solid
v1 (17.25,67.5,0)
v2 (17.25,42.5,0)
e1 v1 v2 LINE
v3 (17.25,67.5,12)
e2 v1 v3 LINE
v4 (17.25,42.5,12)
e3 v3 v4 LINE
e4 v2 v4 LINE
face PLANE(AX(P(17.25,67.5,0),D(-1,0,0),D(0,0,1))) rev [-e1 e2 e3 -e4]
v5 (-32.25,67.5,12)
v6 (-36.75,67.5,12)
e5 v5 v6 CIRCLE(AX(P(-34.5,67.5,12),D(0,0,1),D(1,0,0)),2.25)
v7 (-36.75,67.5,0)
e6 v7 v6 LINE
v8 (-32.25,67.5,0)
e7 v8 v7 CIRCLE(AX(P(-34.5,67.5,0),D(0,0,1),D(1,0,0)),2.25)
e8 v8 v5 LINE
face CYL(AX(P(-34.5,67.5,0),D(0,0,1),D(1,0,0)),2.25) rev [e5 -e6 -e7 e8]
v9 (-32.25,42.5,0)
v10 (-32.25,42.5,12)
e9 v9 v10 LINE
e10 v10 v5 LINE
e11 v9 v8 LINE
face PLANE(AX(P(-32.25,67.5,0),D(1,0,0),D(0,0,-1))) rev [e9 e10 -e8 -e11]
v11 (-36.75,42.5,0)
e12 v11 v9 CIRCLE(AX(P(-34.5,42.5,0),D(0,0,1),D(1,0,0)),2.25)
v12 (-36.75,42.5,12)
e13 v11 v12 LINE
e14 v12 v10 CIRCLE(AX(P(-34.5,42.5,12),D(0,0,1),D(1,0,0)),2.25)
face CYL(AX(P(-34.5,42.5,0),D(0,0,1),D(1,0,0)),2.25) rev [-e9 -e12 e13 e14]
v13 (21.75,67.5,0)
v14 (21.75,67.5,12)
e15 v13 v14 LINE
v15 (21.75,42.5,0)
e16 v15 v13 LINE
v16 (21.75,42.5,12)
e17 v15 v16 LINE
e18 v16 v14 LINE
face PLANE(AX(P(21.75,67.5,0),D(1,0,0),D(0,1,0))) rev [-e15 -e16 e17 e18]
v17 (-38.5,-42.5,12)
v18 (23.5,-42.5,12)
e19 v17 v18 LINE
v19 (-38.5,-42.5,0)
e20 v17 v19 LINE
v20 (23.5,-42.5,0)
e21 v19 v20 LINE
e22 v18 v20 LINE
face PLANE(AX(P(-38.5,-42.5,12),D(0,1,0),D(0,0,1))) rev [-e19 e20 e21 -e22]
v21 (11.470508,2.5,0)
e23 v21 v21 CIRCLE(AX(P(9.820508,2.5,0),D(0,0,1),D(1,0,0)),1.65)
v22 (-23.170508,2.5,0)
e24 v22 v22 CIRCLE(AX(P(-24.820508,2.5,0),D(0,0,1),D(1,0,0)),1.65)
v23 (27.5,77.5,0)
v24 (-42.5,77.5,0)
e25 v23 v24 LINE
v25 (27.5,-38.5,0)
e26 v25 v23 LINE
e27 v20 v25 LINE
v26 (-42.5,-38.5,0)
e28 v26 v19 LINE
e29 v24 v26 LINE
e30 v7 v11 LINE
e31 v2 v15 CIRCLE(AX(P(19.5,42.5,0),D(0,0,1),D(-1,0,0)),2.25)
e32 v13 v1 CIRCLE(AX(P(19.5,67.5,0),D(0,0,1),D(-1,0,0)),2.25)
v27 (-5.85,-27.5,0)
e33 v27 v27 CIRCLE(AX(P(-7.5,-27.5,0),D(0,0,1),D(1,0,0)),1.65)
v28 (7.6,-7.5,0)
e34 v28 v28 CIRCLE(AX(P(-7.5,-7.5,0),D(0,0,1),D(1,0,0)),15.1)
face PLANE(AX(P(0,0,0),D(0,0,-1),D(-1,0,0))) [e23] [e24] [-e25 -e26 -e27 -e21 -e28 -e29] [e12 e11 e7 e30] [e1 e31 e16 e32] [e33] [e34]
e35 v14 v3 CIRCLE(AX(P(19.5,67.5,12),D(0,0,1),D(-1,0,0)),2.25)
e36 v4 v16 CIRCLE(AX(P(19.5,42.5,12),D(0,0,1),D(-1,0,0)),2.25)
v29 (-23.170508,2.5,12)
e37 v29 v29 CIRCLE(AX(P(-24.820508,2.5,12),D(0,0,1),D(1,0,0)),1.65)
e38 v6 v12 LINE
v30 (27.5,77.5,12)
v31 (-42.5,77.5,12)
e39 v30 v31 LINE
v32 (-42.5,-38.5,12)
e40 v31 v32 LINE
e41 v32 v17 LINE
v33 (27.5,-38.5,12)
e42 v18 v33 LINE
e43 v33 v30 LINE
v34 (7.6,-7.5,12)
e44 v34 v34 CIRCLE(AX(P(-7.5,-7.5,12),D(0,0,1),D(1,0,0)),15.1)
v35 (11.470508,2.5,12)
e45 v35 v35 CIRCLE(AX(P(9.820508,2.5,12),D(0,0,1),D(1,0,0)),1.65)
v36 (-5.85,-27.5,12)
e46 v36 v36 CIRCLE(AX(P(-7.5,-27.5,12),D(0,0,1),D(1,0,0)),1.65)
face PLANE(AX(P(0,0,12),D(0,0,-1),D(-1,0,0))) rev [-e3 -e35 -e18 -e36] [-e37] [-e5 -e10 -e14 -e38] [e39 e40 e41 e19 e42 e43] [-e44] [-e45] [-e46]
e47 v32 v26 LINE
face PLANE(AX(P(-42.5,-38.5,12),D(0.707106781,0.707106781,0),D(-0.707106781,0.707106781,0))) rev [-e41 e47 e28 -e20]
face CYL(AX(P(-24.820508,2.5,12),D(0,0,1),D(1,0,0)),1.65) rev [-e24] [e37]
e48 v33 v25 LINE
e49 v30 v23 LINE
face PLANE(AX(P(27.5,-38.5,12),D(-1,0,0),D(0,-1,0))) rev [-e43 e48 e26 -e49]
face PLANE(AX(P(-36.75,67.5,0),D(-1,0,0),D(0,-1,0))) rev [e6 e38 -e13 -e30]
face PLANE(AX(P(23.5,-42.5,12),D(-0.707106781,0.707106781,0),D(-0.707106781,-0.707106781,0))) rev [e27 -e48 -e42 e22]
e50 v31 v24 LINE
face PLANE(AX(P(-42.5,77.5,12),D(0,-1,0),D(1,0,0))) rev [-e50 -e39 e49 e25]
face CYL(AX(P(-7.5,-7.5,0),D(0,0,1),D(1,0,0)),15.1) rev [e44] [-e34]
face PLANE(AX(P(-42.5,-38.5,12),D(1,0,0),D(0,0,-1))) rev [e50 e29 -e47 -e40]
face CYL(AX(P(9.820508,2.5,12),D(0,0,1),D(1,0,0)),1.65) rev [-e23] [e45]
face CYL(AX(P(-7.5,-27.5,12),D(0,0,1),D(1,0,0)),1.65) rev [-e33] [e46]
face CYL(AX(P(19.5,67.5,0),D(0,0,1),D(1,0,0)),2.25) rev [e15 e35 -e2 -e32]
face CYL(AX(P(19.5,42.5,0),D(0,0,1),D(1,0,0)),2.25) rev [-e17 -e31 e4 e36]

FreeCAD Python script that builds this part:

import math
import FreeCAD as App
import Part
import Sketcher

V = App.Vector
Q = App.Units.Quantity

doc = App.newDocument("Part")
body = doc.addObject("PartDesign::Body", "Body")

# Sketch on XY plane
sketch1 = doc.addObject("Sketcher::SketchObject", "Sketch")
body.addObject(sketch1)
sketch1.AttachmentSupport = (doc.XY_Plane, [""])
sketch1.MapMode = "FlatFace"
sketch1.addGeometry([
    Part.LineSegment(V(-38, -42, 0), V(24, -42, 0)),  # 0
    Part.LineSegment(V(24, -42, 0), V(28, -38, 0)),  # 1
    Part.LineSegment(V(28, -38, 0), V(28, 78, 0)),  # 2
    Part.LineSegment(V(28, 78, 0), V(-42, 78, 0)),  # 3
    Part.LineSegment(V(-42, 78, 0), V(-42, -38, 0)),  # 4
    Part.LineSegment(V(-42, -38, 0), V(-38, -42, 0)),  # 5
], False)
sketch1.addConstraint([
    Sketcher.Constraint("Coincident", 0, 2, 1, 1),
    Sketcher.Constraint("Coincident", 1, 2, 2, 1),
    Sketcher.Constraint("Coincident", 2, 2, 3, 1),
    Sketcher.Constraint("Coincident", 3, 2, 4, 1),
    Sketcher.Constraint("Coincident", 4, 2, 5, 1),
    Sketcher.Constraint("Coincident", 5, 2, 0, 1),
    Sketcher.Constraint("Horizontal", 0),
    Sketcher.Constraint("Vertical", 2),
    Sketcher.Constraint("Horizontal", 3),
    Sketcher.Constraint("Vertical", 4),
    Sketcher.Constraint("Perpendicular", 1, 5),
    Sketcher.Constraint("Horizontal", 1, 2, 4, 2),
    Sketcher.Constraint("Equal", 1, 5),
    Sketcher.Constraint("DistanceX", 0, 1, 0, 2, Q("62 mm")),
    Sketcher.Constraint("DistanceX", 3, 2, 3, 1, Q("70 mm")),
    Sketcher.Constraint("DistanceY", 2, 1, 2, 2, Q("116 mm")),
    Sketcher.Constraint("DistanceX", -1, 1, 0, 2, Q("23.5 mm")),
    Sketcher.Constraint("DistanceY", 0, 2, -1, 1, Q("42.5 mm")),
])
pad1 = doc.addObject("PartDesign::Pad", "Pad")
body.addObject(pad1)
pad1.Profile = sketch1
pad1.Length = 12

# Sketch on XY plane
sketch2 = doc.addObject("Sketcher::SketchObject", "Sketch001")
body.addObject(sketch2)
sketch2.AttachmentSupport = (doc.XY_Plane, [""])
sketch2.MapMode = "FlatFace"
sketch2.AttachmentOffset = App.Placement(V(0, 0, 12), App.Rotation())
sketch2.addGeometry(Part.Circle(V(-8, -8, 0), V(0, 0, 1), 15), False)
sketch2.addConstraint([
    Sketcher.Constraint("Diameter", 0, Q("30.2 mm")),
    Sketcher.Constraint("DistanceX", 0, 3, -1, 1, Q("7.5 mm")),
    Sketcher.Constraint("DistanceY", 0, 3, -1, 1, Q("7.5 mm")),
])
pocket1 = doc.addObject("PartDesign::Pocket", "Pocket")
body.addObject(pocket1)
pocket1.Profile = sketch2
pocket1.Type = "ThroughAll"

# Sketch on XY plane
sketch3 = doc.addObject("Sketcher::SketchObject", "Sketch002")
body.addObject(sketch3)
sketch3.AttachmentSupport = (doc.XY_Plane, [""])
sketch3.MapMode = "FlatFace"
sketch3.AttachmentOffset = App.Placement(V(0, 0, 12), App.Rotation())
sketch3.addGeometry([
    Part.Circle(V(-7.5, -27.5, 0), V(0, 0, 1), 1.6),
    Part.Circle(V(-24.8, 2.5, 0), V(0, 0, 1), 1.6),
    Part.Circle(V(9.8, 2.5, 0), V(0, 0, 1), 1.6),
], False)
sketch3.addConstraint([
    Sketcher.Constraint("Equal", 0, 1),
    Sketcher.Constraint("Equal", 1, 2),
    Sketcher.Constraint("Horizontal", 1, 3, 2, 3),
    Sketcher.Constraint("Diameter", 0, Q("3.3 mm")),
    Sketcher.Constraint("DistanceY", 0, 3, 1, 3, Q("30 mm")),
    Sketcher.Constraint("DistanceX", 0, 3, -1, 1, Q("7.5 mm")),
    Sketcher.Constraint("DistanceY", 0, 3, -1, 1, Q("27.5 mm")),
    Sketcher.Constraint("DistanceX", 1, 3, -1, 1, Q("24.820508 mm")),
    Sketcher.Constraint("DistanceX", -1, 1, 2, 3, Q("9.820508 mm")),
])
doc.recompute()
hole = doc.addObject("PartDesign::Hole", "Hole")
body.addObject(hole)
hole.Profile = sketch3
hole.ThreadType = "None"
hole.Diameter = 3.3
hole.DepthType = "ThroughAll"

# Sketch on XY plane
sketch4 = doc.addObject("Sketcher::SketchObject", "Sketch003")
body.addObject(sketch4)
sketch4.AttachmentSupport = (doc.XY_Plane, [""])
sketch4.MapMode = "FlatFace"
sketch4.AttachmentOffset = App.Placement(V(0, 0, 12), App.Rotation())
sketch4.addGeometry([
    Part.LineSegment(V(-32.2, 42.5, 0), V(-32.2, 67.5, 0)),  # 0
    Part.ArcOfCircle(Part.Circle(V(-34.5, 67.5, 0), V(0, 0, 1), 2.2), math.radians(0), math.radians(180)),  # 1
    Part.LineSegment(V(-36.8, 67.5, 0), V(-36.8, 42.5, 0)),  # 2
    Part.ArcOfCircle(Part.Circle(V(-34.5, 42.5, 0), V(0, 0, 1), 2.2), math.radians(180), math.radians(360)),  # 3
    Part.LineSegment(V(17.2, 67.5, 0), V(17.2, 42.5, 0)),  # 4
    Part.ArcOfCircle(Part.Circle(V(19.5, 42.5, 0), V(0, 0, 1), 2.2), math.radians(180), math.radians(360)),  # 5
    Part.LineSegment(V(21.8, 42.5, 0), V(21.8, 67.5, 0)),  # 6
    Part.ArcOfCircle(Part.Circle(V(19.5, 67.5, 0), V(0, 0, 1), 2.2), math.radians(0), math.radians(180)),  # 7
], False)
sketch4.addConstraint([
    Sketcher.Constraint("Tangent", 0, 2, 1, 1),
    Sketcher.Constraint("Tangent", 1, 2, 2, 1),
    Sketcher.Constraint("Tangent", 2, 2, 3, 1),
    Sketcher.Constraint("Tangent", 3, 2, 0, 1),
    Sketcher.Constraint("Tangent", 4, 2, 5, 1),
    Sketcher.Constraint("Tangent", 5, 2, 6, 1),
    Sketcher.Constraint("Tangent", 6, 2, 7, 1),
    Sketcher.Constraint("Tangent", 7, 2, 4, 1),
    Sketcher.Constraint("Vertical", 0),
    Sketcher.Constraint("Vertical", 2),
    Sketcher.Constraint("Vertical", 4),
    Sketcher.Constraint("Vertical", 6),
    Sketcher.Constraint("Equal", 3, 5),
    Sketcher.Constraint("Horizontal", 3, 3, 5, 3),
    Sketcher.Constraint("Horizontal", 1, 3, 7, 3),
    Sketcher.Constraint("DistanceY", 0, 1, 0, 2, Q("25 mm")),
    Sketcher.Constraint("Radius", 1, Q("2.25 mm")),
    Sketcher.Constraint("DistanceX", 3, 3, 5, 3, Q("54 mm")),
    Sketcher.Constraint("DistanceX", 1, 3, -1, 1, Q("34.5 mm")),
    Sketcher.Constraint("DistanceY", -1, 1, 1, 3, Q("67.5 mm")),
])
pocket2 = doc.addObject("PartDesign::Pocket", "Pocket001")
body.addObject(pocket2)
pocket2.Profile = sketch4
pocket2.Type = "ThroughAll"

doc.recompute()
